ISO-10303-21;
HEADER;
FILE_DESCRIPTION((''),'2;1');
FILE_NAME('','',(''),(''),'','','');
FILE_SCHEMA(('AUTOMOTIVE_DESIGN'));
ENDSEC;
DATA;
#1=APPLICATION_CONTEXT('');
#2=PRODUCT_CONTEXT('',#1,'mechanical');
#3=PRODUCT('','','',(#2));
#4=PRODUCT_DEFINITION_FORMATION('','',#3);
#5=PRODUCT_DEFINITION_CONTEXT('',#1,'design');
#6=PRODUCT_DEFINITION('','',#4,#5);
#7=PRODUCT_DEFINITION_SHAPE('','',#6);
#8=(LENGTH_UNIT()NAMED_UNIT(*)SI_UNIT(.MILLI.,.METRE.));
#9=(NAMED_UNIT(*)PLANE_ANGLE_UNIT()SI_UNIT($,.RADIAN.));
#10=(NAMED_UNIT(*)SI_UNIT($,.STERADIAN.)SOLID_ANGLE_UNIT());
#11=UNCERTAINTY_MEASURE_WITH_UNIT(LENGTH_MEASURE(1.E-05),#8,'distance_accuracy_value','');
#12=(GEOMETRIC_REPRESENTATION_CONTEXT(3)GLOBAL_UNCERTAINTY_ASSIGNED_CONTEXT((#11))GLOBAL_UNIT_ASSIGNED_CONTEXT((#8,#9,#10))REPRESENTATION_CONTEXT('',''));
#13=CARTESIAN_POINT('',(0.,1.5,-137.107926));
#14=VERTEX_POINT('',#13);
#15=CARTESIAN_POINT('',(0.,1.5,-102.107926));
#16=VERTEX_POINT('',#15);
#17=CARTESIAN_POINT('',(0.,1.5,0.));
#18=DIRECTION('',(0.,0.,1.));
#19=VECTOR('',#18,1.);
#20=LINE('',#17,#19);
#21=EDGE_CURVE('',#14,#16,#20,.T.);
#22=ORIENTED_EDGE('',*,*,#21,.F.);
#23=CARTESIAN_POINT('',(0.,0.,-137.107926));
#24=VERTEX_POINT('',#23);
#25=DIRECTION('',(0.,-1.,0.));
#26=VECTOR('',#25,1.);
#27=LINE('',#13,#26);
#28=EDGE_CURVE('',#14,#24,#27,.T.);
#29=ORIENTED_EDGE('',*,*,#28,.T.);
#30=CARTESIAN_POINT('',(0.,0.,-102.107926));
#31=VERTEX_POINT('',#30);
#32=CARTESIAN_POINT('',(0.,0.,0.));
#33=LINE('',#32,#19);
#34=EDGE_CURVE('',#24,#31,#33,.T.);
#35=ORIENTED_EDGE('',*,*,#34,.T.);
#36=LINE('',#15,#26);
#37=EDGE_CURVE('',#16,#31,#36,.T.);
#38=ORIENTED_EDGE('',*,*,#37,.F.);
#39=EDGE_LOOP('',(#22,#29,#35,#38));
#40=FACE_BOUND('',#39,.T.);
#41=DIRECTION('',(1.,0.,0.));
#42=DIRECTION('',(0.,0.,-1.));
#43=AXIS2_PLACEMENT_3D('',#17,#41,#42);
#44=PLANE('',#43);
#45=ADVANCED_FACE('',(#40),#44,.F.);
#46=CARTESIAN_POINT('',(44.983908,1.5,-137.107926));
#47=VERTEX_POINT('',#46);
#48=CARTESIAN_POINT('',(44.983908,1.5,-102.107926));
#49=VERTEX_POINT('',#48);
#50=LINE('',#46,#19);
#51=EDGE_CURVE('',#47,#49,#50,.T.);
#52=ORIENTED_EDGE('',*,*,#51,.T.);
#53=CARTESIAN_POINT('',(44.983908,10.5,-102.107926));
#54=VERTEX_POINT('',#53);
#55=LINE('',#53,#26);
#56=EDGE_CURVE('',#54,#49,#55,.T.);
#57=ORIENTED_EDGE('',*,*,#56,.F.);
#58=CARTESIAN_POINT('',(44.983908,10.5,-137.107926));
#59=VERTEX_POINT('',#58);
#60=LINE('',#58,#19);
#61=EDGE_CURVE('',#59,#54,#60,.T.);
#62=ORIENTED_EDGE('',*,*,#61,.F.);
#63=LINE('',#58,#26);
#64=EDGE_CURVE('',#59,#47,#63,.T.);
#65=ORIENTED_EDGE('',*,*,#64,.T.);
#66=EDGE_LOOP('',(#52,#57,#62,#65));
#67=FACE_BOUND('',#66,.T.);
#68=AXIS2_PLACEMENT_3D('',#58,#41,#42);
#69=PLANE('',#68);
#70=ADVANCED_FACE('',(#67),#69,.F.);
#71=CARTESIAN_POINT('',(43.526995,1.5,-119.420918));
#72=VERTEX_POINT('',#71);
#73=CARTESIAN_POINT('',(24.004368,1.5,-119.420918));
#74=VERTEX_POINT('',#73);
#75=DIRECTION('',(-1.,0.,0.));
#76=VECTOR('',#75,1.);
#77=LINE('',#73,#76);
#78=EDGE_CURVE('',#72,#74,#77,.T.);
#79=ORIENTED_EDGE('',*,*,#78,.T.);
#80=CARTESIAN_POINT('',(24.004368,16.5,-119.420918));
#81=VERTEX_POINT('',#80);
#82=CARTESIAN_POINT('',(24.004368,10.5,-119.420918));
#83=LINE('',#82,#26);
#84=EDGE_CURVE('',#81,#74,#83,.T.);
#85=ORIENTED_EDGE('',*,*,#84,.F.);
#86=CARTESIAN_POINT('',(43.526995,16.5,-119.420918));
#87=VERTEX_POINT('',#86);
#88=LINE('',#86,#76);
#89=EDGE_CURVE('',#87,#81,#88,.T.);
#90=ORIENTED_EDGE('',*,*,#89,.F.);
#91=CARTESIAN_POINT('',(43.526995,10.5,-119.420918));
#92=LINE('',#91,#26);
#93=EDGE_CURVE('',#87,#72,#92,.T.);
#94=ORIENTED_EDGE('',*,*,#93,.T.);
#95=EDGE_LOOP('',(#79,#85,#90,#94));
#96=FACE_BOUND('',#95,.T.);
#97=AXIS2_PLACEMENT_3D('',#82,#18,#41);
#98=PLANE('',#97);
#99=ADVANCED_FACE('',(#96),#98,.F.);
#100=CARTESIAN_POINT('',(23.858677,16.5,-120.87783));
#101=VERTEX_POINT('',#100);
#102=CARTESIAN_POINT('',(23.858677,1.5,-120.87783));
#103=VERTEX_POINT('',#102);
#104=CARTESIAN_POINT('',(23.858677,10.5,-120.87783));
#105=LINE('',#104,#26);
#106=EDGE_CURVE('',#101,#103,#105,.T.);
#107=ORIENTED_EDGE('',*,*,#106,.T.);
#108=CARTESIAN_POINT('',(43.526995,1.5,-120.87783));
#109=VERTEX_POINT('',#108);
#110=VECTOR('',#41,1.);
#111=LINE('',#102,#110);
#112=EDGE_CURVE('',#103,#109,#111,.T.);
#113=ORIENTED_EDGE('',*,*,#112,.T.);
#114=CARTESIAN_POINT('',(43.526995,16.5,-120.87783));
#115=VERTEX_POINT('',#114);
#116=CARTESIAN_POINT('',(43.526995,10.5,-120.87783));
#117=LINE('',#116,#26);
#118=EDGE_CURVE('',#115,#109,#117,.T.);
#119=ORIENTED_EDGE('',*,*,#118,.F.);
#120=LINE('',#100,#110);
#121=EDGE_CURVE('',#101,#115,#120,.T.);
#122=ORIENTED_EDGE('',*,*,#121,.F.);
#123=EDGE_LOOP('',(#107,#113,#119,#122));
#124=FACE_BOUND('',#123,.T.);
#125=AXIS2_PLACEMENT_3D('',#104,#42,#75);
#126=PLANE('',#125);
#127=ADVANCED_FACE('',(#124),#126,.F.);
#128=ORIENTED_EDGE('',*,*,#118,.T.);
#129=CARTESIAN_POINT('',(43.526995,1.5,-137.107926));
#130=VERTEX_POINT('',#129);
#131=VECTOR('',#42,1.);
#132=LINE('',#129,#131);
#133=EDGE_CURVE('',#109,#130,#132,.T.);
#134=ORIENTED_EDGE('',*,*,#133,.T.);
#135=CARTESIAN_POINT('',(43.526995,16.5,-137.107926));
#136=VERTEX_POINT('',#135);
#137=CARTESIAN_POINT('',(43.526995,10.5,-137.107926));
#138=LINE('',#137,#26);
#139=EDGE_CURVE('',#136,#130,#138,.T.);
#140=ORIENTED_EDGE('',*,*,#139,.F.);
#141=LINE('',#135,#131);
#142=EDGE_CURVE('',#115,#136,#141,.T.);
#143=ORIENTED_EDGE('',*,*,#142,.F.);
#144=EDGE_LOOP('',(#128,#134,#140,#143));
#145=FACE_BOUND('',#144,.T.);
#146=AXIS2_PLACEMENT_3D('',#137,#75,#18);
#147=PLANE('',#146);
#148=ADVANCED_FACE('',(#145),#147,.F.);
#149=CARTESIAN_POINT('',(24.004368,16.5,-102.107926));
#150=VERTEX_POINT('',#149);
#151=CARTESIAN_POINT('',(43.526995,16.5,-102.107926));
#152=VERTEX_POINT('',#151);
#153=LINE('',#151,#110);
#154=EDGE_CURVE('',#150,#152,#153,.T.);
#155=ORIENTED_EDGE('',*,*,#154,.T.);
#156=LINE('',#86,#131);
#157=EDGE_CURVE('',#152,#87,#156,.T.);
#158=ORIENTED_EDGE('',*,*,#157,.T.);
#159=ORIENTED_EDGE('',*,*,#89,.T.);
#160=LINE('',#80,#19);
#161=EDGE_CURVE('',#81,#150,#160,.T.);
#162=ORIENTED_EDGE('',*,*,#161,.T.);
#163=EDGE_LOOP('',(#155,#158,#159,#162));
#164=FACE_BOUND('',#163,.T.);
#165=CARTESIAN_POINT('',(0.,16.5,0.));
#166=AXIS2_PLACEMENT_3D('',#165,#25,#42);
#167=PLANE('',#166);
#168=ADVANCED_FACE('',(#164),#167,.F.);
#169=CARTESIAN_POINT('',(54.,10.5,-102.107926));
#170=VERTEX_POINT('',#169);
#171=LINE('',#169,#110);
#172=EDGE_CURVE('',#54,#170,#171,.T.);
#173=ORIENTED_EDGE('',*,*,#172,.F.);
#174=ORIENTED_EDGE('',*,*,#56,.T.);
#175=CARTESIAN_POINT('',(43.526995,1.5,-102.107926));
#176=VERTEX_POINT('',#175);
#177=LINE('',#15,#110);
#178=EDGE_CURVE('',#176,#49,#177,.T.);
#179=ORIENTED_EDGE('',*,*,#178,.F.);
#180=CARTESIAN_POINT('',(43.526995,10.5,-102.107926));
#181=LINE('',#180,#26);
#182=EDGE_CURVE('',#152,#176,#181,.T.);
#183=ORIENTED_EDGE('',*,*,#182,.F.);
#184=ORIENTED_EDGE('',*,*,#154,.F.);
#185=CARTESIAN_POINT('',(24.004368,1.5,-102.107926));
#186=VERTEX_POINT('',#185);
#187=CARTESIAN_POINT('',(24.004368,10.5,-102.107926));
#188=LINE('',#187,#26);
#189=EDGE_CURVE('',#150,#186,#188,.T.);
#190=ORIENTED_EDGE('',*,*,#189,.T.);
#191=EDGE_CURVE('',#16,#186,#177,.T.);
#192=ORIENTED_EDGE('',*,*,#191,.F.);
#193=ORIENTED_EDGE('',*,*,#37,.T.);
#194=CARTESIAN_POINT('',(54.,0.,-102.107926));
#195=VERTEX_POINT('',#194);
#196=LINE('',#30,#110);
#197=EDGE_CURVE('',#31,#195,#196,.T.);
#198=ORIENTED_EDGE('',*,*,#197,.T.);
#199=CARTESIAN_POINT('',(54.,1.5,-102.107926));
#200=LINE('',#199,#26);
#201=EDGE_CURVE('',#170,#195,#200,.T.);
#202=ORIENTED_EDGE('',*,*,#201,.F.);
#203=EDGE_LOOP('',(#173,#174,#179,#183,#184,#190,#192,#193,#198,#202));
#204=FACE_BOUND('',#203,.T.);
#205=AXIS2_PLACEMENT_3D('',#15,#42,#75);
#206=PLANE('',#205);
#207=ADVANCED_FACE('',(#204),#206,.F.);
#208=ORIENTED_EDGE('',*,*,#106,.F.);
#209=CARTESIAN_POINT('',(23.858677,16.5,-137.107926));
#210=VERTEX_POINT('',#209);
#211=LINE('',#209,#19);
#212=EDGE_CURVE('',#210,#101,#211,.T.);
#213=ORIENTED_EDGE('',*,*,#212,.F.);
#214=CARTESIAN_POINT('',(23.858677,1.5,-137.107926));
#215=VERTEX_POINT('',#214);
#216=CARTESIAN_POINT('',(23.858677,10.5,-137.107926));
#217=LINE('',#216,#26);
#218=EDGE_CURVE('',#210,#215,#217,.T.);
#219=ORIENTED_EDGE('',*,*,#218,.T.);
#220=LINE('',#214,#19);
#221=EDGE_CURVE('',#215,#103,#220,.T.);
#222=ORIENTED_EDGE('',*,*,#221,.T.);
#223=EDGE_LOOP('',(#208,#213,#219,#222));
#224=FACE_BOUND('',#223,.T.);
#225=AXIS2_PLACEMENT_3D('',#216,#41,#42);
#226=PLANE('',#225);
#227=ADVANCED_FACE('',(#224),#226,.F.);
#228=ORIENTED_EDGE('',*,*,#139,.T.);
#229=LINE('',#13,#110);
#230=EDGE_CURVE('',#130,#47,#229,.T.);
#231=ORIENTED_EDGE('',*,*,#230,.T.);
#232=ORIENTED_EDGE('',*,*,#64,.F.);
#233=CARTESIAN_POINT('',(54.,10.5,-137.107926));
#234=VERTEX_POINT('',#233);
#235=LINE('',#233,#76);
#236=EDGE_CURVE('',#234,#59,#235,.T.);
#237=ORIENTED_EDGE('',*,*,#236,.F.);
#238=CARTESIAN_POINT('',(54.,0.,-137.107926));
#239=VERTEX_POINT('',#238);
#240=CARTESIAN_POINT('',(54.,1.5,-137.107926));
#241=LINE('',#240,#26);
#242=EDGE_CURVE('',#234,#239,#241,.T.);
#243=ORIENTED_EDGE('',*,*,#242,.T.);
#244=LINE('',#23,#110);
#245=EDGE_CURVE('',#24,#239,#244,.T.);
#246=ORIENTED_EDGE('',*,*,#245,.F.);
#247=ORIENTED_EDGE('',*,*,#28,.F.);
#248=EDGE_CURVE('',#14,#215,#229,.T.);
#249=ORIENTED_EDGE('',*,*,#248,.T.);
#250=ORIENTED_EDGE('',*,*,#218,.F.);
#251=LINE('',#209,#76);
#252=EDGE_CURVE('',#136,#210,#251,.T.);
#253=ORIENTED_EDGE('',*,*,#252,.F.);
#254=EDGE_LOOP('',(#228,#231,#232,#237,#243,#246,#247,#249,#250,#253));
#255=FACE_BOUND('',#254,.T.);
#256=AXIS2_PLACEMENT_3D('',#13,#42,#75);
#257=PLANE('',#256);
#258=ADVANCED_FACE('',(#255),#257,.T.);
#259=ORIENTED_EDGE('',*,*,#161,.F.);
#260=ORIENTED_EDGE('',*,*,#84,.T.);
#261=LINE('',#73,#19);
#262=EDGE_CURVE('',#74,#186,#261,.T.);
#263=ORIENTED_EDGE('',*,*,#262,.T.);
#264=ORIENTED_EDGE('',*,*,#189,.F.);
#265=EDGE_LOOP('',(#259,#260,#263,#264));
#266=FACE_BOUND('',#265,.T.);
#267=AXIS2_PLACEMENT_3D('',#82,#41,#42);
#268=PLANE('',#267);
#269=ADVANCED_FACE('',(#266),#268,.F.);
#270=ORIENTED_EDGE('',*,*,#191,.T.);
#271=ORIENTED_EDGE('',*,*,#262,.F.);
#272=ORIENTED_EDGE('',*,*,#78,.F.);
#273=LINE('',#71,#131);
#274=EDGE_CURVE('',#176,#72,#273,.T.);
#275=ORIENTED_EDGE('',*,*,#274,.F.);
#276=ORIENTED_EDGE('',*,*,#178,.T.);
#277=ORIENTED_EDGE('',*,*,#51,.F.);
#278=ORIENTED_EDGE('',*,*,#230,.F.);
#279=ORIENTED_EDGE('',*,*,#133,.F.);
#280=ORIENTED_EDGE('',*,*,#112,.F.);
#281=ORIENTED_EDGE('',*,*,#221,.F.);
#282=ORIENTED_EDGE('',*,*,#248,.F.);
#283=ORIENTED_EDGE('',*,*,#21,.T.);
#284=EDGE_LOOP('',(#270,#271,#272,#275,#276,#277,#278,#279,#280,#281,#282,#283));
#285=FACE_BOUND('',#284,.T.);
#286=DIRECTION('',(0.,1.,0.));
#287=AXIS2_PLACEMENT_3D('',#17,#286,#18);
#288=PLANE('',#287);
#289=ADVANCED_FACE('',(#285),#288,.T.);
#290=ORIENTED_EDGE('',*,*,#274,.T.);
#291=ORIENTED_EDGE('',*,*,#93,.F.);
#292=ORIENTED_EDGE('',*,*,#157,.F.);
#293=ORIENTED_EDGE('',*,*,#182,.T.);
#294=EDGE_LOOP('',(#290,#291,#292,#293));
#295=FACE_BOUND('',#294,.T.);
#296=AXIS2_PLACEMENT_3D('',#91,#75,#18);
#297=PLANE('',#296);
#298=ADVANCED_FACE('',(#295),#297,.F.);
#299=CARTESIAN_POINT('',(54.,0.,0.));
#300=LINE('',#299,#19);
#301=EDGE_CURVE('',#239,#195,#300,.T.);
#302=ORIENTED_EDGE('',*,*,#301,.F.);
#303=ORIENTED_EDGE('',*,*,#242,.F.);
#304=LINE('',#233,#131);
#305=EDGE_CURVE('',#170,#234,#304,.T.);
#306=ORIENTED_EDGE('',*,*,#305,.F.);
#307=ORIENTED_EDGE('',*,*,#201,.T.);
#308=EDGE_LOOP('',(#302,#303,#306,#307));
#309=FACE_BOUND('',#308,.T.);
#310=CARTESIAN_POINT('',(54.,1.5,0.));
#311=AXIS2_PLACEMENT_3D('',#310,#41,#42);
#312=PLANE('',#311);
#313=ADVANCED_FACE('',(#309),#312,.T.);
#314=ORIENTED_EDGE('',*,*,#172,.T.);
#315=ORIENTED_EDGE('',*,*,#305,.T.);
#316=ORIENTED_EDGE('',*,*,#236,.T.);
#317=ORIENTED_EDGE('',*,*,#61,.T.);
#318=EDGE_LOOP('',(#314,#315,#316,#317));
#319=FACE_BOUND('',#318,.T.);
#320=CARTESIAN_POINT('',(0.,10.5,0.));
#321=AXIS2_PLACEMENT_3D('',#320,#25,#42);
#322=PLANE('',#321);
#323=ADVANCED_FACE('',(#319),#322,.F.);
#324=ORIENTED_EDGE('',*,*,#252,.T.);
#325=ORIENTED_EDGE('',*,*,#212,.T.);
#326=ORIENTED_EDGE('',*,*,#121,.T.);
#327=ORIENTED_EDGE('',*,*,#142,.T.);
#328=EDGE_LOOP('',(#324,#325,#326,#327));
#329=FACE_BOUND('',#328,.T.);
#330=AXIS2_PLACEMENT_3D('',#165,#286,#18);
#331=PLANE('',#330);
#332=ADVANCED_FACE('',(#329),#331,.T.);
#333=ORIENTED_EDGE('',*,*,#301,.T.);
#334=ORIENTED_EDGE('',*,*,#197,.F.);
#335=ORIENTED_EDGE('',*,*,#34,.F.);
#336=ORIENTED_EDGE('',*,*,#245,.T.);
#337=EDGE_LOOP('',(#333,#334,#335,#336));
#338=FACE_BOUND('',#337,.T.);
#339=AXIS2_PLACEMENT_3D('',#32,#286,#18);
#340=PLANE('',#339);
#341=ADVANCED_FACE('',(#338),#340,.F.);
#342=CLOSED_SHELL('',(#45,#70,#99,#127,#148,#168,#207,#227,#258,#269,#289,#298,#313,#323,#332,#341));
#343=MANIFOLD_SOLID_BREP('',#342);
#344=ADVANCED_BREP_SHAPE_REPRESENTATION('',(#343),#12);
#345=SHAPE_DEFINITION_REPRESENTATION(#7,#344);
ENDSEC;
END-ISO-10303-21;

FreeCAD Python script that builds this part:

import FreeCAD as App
import Part
import Sketcher
Q = App.Units.Quantity


def add_polygon(sketch, points):
    """Adds a closed chain of lines whose ends are joined by coincident constraints."""
    first, n = sketch.GeometryCount, len(points)
    for a, b in zip(points, points[1:] + points[:1]):
        sketch.addGeometry(Part.LineSegment(App.Vector(*a, 0), App.Vector(*b, 0)), False)
    for i in range(n):
        sketch.addConstraint(Sketcher.Constraint("Coincident", first + i, 2, first + (i + 1) % n, 1))

doc = App.newDocument("Part")
body = doc.addObject("PartDesign::Body", "Body")

# Sketch on XZ plane
sketch1 = body.newObject("Sketcher::SketchObject", "Sketch")
sketch1.AttachmentSupport = (doc.getObject("XZ_Plane"), [""])
sketch1.MapMode = "FlatFace"
add_polygon(sketch1, [(0, -137), (0, -102), (54, -102), (54, -137)])  # lines 0-3
sketch1.addConstraint(Sketcher.Constraint("Vertical", 0))
sketch1.addConstraint(Sketcher.Constraint("Horizontal", 1))
sketch1.addConstraint(Sketcher.Constraint("Vertical", 2))
sketch1.addConstraint(Sketcher.Constraint("Horizontal", 3))
sketch1.addConstraint(Sketcher.Constraint("PointOnObject", 0, 2, -2))
sketch1.addConstraint(Sketcher.Constraint("DistanceX", 1, 1, 1, 2, Q("54 mm")))
sketch1.addConstraint(Sketcher.Constraint("DistanceY", 0, 1, 0, 2, Q("35 mm")))
sketch1.addConstraint(Sketcher.Constraint("DistanceY", 0, 2, -1, 1, Q("102.107926 mm")))
pad1 = body.newObject("PartDesign::Pad", "Pad")
pad1.Profile = sketch1
pad1.Length = 1.5
pad1.Reversed = True

# Sketch on XZ plane
sketch2 = body.newObject("Sketcher::SketchObject", "Sketch001")
sketch2.AttachmentSupport = (doc.getObject("XZ_Plane"), [""])
sketch2.MapMode = "FlatFace"
sketch2.AttachmentOffset = App.Placement(App.Vector(0, 0, -1.5), App.Rotation())
add_polygon(sketch2, [(45, -137), (45, -102), (54, -102), (54, -137)])  # lines 0-3
add_polygon(sketch2, [(24, -137), (24, -121), (44, -121), (44, -137)])  # lines 4-7
add_polygon(sketch2, [(24, -119), (24, -102), (44, -102), (44, -119)])  # lines 8-11
sketch2.addConstraint(Sketcher.Constraint("Vertical", 0))
sketch2.addConstraint(Sketcher.Constraint("Horizontal", 1))
sketch2.addConstraint(Sketcher.Constraint("Vertical", 2))
sketch2.addConstraint(Sketcher.Constraint("Horizontal", 3))
sketch2.addConstraint(Sketcher.Constraint("Vertical", 4))
sketch2.addConstraint(Sketcher.Constraint("Horizontal", 5))
sketch2.addConstraint(Sketcher.Constraint("Vertical", 6))
sketch2.addConstraint(Sketcher.Constraint("Horizontal", 7))
sketch2.addConstraint(Sketcher.Constraint("Vertical", 8))
sketch2.addConstraint(Sketcher.Constraint("Horizontal", 9))
sketch2.addConstraint(Sketcher.Constraint("Vertical", 10))
sketch2.addConstraint(Sketcher.Constraint("Horizontal", 11))
sketch2.addConstraint(Sketcher.Constraint("Horizontal", 3, 2, 6, 2))
sketch2.addConstraint(Sketcher.Constraint("Horizontal", 1, 2, 8, 2))
sketch2.addConstraint(Sketcher.Constraint("Vertical", 6, 2, 9, 2))
sketch2.addConstraint(Sketcher.Constraint("DistanceY", 0, 1, 0, 2, Q("35 mm")))
sketch2.addConstraint(Sketcher.Constraint("DistanceX", -1, 1, 1, 2, Q("54 mm")))
sketch2.addConstraint(Sketcher.Constraint("DistanceX", 5, 1, 5, 2, Q("19.668319 mm")))
sketch2.addConstraint(Sketcher.Constraint("DistanceY", 8, 1, 8, 2, Q("17.312991 mm")))
sketch2.addConstraint(Sketcher.Constraint("DistanceX", 1, 1, 1, 2, Q("9.016092 mm")))
sketch2.addConstraint(Sketcher.Constraint("DistanceX", 9, 1, 9, 2, Q("19.522627 mm")))
sketch2.addConstraint(Sketcher.Constraint("DistanceY", 4, 1, 4, 2, Q("16.230096 mm")))
sketch2.addConstraint(Sketcher.Constraint("DistanceY", 4, 2, -1, 1, Q("120.87783 mm")))
sketch2.addConstraint(Sketcher.Constraint("DistanceX", 4, 2, 3, 2, Q("21.125231 mm")))
pad2 = body.newObject("PartDesign::Pad", "Pad001")
pad2.Profile = sketch2
pad2.Length = 9
pad2.Reversed = True

# Sketch on XZ plane
sketch3 = body.newObject("Sketcher::SketchObject", "Sketch002")
sketch3.AttachmentSupport = (doc.getObject("XZ_Plane"), [""])
sketch3.MapMode = "FlatFace"
sketch3.AttachmentOffset = App.Placement(App.Vector(0, 0, -10.5), App.Rotation())
add_polygon(sketch3, [(24, -137), (24, -121), (44, -121), (44, -137)])  # lines 0-3
add_polygon(sketch3, [(24, -119), (24, -102), (44, -102), (44, -119)])  # lines 4-7
sketch3.addConstraint(Sketcher.Constraint("Vertical", 0))
sketch3.addConstraint(Sketcher.Constraint("Horizontal", 1))
sketch3.addConstraint(Sketcher.Constraint("Vertical", 2))
sketch3.addConstraint(Sketcher.Constraint("Horizontal", 3))
sketch3.addConstraint(Sketcher.Constraint("Vertical", 4))
sketch3.addConstraint(Sketcher.Constraint("Horizontal", 5))
sketch3.addConstraint(Sketcher.Constraint("Vertical", 6))
sketch3.addConstraint(Sketcher.Constraint("Horizontal", 7))
sketch3.addConstraint(Sketcher.Constraint("Vertical", 2, 2, 5, 2))
sketch3.addConstraint(Sketcher.Constraint("DistanceY", 3, 2, 4, 2, Q("35 mm")))
sketch3.addConstraint(Sketcher.Constraint("DistanceX", 1, 1, 1, 2, Q("19.668319 mm")))
sketch3.addConstraint(Sketcher.Constraint("DistanceY", 4, 1, 4, 2, Q("17.312991 mm")))
sketch3.addConstraint(Sketcher.Constraint("DistanceX", 5, 1, 5, 2, Q("19.522627 mm")))
sketch3.addConstraint(Sketcher.Constraint("DistanceY", 0, 1, 0, 2, Q("16.230096 mm")))
sketch3.addConstraint(Sketcher.Constraint("DistanceY", 0, 2, -1, 1, Q("120.87783 mm")))
sketch3.addConstraint(Sketcher.Constraint("DistanceX", -1, 1, 0, 2, Q("23.858677 mm")))
pad3 = body.newObject("PartDesign::Pad", "Pad002")
pad3.Profile = sketch3
pad3.Length = 6
pad3.Reversed = True

doc.recompute()
